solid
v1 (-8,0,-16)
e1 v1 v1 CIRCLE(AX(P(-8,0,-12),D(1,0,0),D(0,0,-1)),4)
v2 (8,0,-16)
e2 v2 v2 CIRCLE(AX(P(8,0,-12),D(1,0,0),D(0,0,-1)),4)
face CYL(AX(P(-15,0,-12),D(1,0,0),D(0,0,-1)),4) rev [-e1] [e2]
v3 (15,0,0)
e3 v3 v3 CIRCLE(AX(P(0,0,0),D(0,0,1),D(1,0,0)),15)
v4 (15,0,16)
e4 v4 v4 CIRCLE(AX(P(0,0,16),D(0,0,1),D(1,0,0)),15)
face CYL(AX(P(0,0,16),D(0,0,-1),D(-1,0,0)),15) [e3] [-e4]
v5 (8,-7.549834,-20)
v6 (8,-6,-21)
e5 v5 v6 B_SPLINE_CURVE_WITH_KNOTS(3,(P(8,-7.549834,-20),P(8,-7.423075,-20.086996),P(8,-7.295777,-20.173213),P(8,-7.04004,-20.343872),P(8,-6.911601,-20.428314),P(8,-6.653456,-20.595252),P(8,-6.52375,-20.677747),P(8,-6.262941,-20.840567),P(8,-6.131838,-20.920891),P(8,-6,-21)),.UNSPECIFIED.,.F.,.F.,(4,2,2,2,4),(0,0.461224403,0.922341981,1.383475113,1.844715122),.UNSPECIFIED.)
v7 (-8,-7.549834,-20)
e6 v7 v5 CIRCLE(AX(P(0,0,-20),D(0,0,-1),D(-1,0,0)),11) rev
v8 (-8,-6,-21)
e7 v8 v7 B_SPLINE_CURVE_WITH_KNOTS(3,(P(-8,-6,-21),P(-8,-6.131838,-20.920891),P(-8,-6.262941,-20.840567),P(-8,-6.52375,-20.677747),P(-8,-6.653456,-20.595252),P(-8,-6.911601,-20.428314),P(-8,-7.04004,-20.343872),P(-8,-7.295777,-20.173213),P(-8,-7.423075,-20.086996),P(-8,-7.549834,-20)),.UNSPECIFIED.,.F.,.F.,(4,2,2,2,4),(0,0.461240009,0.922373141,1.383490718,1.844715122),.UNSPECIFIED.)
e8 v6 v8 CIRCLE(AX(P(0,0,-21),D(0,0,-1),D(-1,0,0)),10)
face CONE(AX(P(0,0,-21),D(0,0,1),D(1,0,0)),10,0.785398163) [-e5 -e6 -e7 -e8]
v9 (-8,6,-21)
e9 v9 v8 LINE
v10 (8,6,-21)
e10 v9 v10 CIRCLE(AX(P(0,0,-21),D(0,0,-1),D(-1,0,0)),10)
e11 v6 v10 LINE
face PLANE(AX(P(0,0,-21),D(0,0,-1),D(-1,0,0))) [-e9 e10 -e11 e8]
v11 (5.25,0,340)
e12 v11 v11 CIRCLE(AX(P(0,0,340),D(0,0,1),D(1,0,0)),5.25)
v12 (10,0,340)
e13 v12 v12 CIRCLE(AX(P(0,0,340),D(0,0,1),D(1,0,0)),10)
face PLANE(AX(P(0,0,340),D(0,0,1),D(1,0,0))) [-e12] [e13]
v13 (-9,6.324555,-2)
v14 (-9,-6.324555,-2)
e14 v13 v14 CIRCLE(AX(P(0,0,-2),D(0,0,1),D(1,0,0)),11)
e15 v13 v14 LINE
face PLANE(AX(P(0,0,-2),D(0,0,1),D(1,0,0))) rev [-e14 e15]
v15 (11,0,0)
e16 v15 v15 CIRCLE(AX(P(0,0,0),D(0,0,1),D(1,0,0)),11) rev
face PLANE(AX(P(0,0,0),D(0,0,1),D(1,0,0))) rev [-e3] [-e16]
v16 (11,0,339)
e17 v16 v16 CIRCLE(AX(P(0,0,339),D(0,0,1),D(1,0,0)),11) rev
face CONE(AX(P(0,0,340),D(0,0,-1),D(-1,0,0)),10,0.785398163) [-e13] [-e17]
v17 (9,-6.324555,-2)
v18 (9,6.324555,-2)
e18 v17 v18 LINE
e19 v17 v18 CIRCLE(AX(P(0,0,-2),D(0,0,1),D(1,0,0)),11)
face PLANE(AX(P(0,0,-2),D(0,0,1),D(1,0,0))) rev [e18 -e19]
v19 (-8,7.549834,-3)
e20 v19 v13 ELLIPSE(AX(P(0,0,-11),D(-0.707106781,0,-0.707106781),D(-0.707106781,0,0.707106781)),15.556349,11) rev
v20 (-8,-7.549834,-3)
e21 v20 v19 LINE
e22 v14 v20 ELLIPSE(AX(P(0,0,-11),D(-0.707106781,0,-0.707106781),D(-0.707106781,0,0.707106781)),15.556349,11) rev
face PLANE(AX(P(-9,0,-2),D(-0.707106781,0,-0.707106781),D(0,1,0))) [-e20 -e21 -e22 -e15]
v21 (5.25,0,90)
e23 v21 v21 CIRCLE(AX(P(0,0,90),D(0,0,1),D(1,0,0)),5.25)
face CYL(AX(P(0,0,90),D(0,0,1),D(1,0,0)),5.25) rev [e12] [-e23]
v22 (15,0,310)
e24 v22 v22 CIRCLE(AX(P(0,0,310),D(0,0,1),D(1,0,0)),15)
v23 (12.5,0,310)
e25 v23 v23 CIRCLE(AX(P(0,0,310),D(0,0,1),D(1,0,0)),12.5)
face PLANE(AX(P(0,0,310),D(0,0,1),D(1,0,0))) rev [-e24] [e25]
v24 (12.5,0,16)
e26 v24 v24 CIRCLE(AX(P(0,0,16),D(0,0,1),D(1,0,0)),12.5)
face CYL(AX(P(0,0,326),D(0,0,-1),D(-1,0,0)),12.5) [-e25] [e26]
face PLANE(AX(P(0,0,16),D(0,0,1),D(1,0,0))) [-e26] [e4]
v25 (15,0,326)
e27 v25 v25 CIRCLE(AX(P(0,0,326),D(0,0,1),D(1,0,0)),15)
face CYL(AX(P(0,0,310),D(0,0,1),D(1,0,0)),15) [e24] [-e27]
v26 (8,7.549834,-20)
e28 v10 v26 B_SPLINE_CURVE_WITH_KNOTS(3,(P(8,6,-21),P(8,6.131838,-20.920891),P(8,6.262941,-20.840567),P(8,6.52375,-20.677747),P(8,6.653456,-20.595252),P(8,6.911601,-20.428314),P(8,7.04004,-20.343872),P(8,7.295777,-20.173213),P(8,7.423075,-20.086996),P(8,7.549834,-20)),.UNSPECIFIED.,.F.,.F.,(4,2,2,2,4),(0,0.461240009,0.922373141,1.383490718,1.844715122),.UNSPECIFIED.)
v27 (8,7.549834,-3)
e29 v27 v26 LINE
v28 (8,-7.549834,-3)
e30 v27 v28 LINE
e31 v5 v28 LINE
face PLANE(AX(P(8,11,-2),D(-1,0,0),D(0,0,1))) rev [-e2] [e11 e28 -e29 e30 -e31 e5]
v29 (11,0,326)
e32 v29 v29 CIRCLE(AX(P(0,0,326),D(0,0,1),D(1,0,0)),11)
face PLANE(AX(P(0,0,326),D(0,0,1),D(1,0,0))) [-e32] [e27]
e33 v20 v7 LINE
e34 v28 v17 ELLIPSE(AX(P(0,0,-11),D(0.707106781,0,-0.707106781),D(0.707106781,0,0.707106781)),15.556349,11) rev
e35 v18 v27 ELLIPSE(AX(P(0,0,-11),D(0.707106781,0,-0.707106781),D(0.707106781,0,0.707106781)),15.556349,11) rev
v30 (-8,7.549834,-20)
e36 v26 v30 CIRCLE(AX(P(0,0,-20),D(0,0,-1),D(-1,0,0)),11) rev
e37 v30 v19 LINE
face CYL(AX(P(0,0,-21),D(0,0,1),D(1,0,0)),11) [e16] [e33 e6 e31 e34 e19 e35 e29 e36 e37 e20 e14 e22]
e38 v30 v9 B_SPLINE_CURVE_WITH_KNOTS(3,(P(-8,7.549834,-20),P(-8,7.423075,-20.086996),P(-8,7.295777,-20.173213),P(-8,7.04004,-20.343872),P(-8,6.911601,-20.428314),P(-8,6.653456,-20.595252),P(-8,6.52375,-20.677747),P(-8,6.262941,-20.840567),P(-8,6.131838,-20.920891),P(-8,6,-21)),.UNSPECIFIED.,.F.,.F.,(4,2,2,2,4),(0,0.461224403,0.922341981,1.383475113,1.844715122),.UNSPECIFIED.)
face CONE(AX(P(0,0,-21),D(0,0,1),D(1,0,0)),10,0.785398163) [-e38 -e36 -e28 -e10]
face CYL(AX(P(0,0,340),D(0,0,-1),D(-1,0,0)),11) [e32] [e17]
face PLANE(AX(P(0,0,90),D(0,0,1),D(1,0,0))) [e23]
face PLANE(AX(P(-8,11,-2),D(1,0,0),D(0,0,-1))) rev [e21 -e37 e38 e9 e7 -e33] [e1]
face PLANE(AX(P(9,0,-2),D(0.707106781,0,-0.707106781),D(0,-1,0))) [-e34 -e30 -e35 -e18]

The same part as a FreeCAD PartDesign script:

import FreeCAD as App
import Part
import Sketcher


def edges_at(feature, points):
    """Names of the edges that pass closest to the given points."""
    edges = feature.Shape.Edges
    near = lambda p: min(range(len(edges)), key=lambda i: edges[i].distToShape(Part.Vertex(*p))[0])
    return sorted({f"Edge{near(p) + 1}" for p in points})


def add_polygon(sketch, points):
    """Adds a closed chain of lines whose ends are joined by coincident constraints."""
    first, n = sketch.GeometryCount, len(points)
    for a, b in zip(points, points[1:] + points[:1]):
        sketch.addGeometry(Part.LineSegment(App.Vector(*a, 0), App.Vector(*b, 0)), False)
    for i in range(n):
        sketch.addConstraint(Sketcher.Constraint("Coincident", first + i, 2, first + (i + 1) % n, 1))

doc = App.newDocument("Part")
body = doc.addObject("PartDesign::Body", "Body")

# Sketch on XY plane
sketch1 = body.newObject("Sketcher::SketchObject", "Sketch")
sketch1.AttachmentSupport = (doc.getObject("XY_Plane"), [""])
sketch1.MapMode = "FlatFace"
sketch1.addGeometry(Part.Circle(App.Vector(0, 0, 0), App.Vector(0, 0, 1), 12.5), False)
sketch1.addConstraint([
    Sketcher.Constraint("Coincident", 0, 3, -1, 1),
    Sketcher.Constraint("Diameter", 0, 25.0),
])
pad1 = body.newObject("PartDesign::Pad", "Pad")
pad1.Profile = sketch1
pad1.Length = 326

# Sketch on XY plane
sketch2 = body.newObject("Sketcher::SketchObject", "Sketch001")
sketch2.AttachmentSupport = (doc.getObject("XY_Plane"), [""])
sketch2.MapMode = "FlatFace"
sketch2.AttachmentOffset = App.Placement(App.Vector(0, 0, 326), App.Rotation())
sketch2.addGeometry(Part.Circle(App.Vector(0, 0, 0), App.Vector(0, 0, 1), 15), False)
sketch2.addConstraint([
    Sketcher.Constraint("Coincident", 0, 3, -1, 1),
    Sketcher.Constraint("Diameter", 0, 30.0),
])
pad2 = body.newObject("PartDesign::Pad", "Pad001")
pad2.Profile = sketch2
pad2.Length = 16
pad2.Reversed = True

# Sketch on XY plane
sketch3 = body.newObject("Sketcher::SketchObject", "Sketch002")
sketch3.AttachmentSupport = (doc.getObject("XY_Plane"), [""])
sketch3.MapMode = "FlatFace"
sketch3.AttachmentOffset = App.Placement(App.Vector(0, 0, 16), App.Rotation())
sketch3.addGeometry(Part.Circle(App.Vector(0, 0, 0), App.Vector(0, 0, 1), 15), False)
sketch3.addConstraint([
    Sketcher.Constraint("Coincident", 0, 3, -1, 1),
    Sketcher.Constraint("Diameter", 0, 30.0),
])
pad3 = body.newObject("PartDesign::Pad", "Pad002")
pad3.Profile = sketch3
pad3.Length = 16
pad3.Reversed = True

# Sketch on XY plane
sketch4 = body.newObject("Sketcher::SketchObject", "Sketch003")
sketch4.AttachmentSupport = (doc.getObject("XY_Plane"), [""])
sketch4.MapMode = "FlatFace"
sketch4.addGeometry(Part.Circle(App.Vector(0, 0, 0), App.Vector(0, 0, 1), 11), False)
sketch4.addConstraint([
    Sketcher.Constraint("Coincident", 0, 3, -1, 1),
    Sketcher.Constraint("Diameter", 0, 22.0),
])
pad4 = body.newObject("PartDesign::Pad", "Pad003")
pad4.Profile = sketch4
pad4.Length = 21
pad4.Reversed = True

# Sketch on XY plane
sketch5 = body.newObject("Sketcher::SketchObject", "Sketch004")
sketch5.AttachmentSupport = (doc.getObject("XY_Plane"), [""])
sketch5.MapMode = "FlatFace"
sketch5.AttachmentOffset = App.Placement(App.Vector(0, 0, -21), App.Rotation())
add_polygon(sketch5, [(13, 11), (13, -11), (8, -11), (8, 11)])  # lines 0-3
add_polygon(sketch5, [(-8, 11), (-8, -11), (-13, -11), (-13, 11)])  # lines 4-7
sketch5.addConstraint([
    Sketcher.Constraint("Vertical", 0),
    Sketcher.Constraint("Horizontal", 1),
    Sketcher.Constraint("Vertical", 2),
    Sketcher.Constraint("Horizontal", 3),
    Sketcher.Constraint("Vertical", 4),
    Sketcher.Constraint("Horizontal", 5),
    Sketcher.Constraint("Vertical", 6),
    Sketcher.Constraint("Horizontal", 7),
    Sketcher.Constraint("Symmetric", 2, 2, 4, 2, -1, 1),
    Sketcher.Constraint("Symmetric", 0, 2, 6, 2, -1, 1),
    Sketcher.Constraint("Horizontal", 1, 2, 4, 2),
    Sketcher.Constraint("DistanceX", 1, 2, 1, 1, 5.0),
    Sketcher.Constraint("DistanceY", 0, 2, 0, 1, 22.0),
    Sketcher.Constraint("DistanceX", -1, 1, 0, 2, 13.0),
])
pocket1 = body.newObject("PartDesign::Pocket", "Pocket")
pocket1.Profile = sketch5
pocket1.Length = 19
pocket1.Reversed = True

# Sketch on YZ plane
sketch6 = body.newObject("Sketcher::SketchObject", "Sketch005")
sketch6.AttachmentSupport = (doc.getObject("YZ_Plane"), [""])
sketch6.MapMode = "FlatFace"
sketch6.AttachmentOffset = App.Placement(App.Vector(0, 0, 8), App.Rotation())
sketch6.addGeometry(Part.Circle(App.Vector(0, -12, 0), App.Vector(0, 0, 1), 4), False)
sketch6.addConstraint([
    Sketcher.Constraint("PointOnObject", 0, 3, -2),
    Sketcher.Constraint("Diameter", 0, 8.0),
    Sketcher.Constraint("DistanceY", 0, 3, -1, 1, 12.0),
])
pocket2 = body.newObject("PartDesign::Pocket", "Pocket001")
pocket2.Profile = sketch6
pocket2.Type = "ThroughAll"

# Sketch on XY plane
sketch7 = body.newObject("Sketcher::SketchObject", "Sketch006")
sketch7.AttachmentSupport = (doc.getObject("XY_Plane"), [""])
sketch7.MapMode = "FlatFace"
sketch7.AttachmentOffset = App.Placement(App.Vector(0, 0, 340), App.Rotation())
sketch7.addGeometry(Part.Circle(App.Vector(0, 0, 0), App.Vector(0, 0, 1), 11), False)
sketch7.addConstraint([
    Sketcher.Constraint("Coincident", 0, 3, -1, 1),
    Sketcher.Constraint("Diameter", 0, 22.0),
])
pad5 = body.newObject("PartDesign::Pad", "Pad004")
pad5.Profile = sketch7
pad5.Length = 14
pad5.Reversed = True
doc.recompute()

chamfer = body.newObject("PartDesign::Chamfer", "Chamfer")
chamfer.Base = (pad5, edges_at(pad5, [
    (0, -11, -21),
    (8, 0, -2),
    (0, 11, -21),
    (-8, 0, -2),
    (-11, 0, 340),
]))
chamfer.Size = 1

# Sketch on XY plane
sketch8 = body.newObject("Sketcher::SketchObject", "Sketch007")
sketch8.AttachmentSupport = (doc.getObject("XY_Plane"), [""])
sketch8.MapMode = "FlatFace"
sketch8.AttachmentOffset = App.Placement(App.Vector(0, 0, 340), App.Rotation())
sketch8.addGeometry(Part.Circle(App.Vector(0, 0, 0), App.Vector(0, 0, 1), 5.25), False)
sketch8.addConstraint([
    Sketcher.Constraint("Coincident", 0, 3, -1, 1),
    Sketcher.Constraint("Diameter", 0, 10.5),
])
pocket3 = body.newObject("PartDesign::Pocket", "Pocket002")
pocket3.Profile = sketch8
pocket3.Length = 250

doc.recompute()
